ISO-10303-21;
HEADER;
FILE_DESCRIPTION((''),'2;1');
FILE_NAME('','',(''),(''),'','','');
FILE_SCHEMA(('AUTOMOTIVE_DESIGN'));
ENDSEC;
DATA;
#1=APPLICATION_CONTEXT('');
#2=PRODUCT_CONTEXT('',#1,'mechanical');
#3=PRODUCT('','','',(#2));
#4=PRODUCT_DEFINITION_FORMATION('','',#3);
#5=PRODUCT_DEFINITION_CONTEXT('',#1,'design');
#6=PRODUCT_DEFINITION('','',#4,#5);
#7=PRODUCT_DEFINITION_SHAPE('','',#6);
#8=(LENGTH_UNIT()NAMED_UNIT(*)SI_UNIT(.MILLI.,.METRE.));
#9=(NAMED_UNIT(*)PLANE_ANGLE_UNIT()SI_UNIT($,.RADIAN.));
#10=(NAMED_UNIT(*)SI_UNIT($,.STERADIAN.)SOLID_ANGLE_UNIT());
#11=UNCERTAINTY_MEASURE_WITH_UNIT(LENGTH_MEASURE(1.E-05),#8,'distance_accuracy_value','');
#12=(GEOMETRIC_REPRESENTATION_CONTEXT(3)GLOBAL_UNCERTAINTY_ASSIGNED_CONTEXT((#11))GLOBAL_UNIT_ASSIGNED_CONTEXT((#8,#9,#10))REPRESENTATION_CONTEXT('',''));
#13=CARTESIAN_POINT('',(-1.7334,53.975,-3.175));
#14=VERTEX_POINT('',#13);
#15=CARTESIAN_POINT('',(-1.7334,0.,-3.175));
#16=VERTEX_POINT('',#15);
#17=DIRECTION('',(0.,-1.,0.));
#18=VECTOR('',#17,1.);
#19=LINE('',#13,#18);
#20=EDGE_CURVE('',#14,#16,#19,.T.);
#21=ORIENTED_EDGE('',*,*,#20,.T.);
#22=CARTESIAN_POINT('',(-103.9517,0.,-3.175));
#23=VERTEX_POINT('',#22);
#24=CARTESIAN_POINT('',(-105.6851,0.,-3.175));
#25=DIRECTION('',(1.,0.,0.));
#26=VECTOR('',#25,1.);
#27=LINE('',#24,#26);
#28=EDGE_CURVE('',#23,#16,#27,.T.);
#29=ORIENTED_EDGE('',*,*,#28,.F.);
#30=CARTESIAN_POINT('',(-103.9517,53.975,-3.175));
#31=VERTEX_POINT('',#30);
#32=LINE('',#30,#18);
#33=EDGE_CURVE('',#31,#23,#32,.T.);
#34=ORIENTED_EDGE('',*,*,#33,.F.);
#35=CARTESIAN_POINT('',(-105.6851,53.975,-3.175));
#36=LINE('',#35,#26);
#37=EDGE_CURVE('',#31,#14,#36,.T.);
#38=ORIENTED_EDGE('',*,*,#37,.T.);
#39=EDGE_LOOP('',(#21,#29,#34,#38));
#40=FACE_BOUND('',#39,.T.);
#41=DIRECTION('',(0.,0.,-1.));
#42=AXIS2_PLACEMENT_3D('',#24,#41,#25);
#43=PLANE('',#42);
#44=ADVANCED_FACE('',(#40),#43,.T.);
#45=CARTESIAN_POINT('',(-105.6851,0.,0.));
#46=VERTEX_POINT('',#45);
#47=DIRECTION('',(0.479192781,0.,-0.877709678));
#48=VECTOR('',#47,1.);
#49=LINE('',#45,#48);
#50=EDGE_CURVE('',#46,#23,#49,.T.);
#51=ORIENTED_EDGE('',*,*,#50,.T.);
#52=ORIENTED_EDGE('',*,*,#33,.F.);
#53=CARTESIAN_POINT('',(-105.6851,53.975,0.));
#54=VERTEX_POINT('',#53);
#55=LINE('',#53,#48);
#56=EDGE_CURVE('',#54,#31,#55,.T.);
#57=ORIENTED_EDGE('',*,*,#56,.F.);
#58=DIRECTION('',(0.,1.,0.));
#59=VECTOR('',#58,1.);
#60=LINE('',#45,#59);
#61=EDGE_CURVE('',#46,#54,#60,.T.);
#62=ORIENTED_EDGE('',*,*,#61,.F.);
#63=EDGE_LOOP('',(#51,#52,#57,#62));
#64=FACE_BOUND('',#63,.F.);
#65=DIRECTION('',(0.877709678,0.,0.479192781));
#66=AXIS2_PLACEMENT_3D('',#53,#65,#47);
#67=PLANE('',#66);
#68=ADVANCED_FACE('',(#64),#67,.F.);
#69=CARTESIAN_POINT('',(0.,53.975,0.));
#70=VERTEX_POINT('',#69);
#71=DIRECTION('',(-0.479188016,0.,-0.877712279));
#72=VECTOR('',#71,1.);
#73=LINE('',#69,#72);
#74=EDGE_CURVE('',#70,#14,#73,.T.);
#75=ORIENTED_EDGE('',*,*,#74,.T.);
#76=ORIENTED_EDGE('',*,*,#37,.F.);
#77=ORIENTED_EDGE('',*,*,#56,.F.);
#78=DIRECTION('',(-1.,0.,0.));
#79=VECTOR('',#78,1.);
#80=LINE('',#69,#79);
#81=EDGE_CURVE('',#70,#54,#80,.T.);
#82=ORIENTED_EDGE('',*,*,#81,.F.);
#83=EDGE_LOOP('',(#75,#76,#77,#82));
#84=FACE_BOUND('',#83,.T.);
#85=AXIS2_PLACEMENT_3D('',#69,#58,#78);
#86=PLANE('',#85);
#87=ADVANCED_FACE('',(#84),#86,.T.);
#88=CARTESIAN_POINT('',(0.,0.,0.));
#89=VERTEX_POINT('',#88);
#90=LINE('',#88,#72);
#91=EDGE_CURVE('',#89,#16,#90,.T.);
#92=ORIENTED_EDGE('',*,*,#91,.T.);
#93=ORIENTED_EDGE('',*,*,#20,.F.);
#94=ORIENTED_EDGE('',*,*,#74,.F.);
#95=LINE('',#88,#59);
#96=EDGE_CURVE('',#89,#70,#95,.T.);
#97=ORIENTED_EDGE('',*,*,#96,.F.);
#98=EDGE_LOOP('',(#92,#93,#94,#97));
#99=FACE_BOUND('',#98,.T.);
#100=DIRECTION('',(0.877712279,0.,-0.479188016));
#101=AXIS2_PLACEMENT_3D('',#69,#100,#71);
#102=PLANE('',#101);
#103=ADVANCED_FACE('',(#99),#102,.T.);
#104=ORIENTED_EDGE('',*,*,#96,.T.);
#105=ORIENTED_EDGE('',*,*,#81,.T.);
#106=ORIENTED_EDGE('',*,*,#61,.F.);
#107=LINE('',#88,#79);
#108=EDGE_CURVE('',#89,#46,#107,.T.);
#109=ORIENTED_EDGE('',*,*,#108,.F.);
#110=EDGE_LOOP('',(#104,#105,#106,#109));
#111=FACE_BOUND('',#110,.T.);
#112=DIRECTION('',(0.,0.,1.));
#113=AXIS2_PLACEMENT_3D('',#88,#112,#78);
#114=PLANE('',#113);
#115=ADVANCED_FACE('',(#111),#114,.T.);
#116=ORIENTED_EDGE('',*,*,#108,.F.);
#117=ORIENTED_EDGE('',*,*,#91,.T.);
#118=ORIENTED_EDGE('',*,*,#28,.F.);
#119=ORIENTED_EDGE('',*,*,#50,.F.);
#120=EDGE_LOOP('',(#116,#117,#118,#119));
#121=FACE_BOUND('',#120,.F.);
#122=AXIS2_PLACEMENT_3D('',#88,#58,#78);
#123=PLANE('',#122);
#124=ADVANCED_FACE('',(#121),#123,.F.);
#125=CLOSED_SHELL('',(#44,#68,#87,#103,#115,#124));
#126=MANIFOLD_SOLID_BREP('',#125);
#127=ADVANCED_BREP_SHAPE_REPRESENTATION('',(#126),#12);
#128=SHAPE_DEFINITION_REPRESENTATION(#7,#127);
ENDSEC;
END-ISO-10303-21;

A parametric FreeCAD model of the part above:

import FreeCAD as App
import Part
import Sketcher
Q = App.Units.Quantity


def add_polygon(sketch, points):
    """Adds a closed chain of lines whose ends are joined by coincident constraints."""
    first, n = sketch.GeometryCount, len(points)
    for a, b in zip(points, points[1:] + points[:1]):
        sketch.addGeometry(Part.LineSegment(App.Vector(*a, 0), App.Vector(*b, 0)), False)
    for i in range(n):
        sketch.addConstraint(Sketcher.Constraint("Coincident", first + i, 2, first + (i + 1) % n, 1))

doc = App.newDocument("Part")
params = doc.addObject("Spreadsheet::Sheet", "Params")
for row, (alias, value) in enumerate([
    ("sketch1_height", "0.125 in"),
    ("pad1_length", "2.125 in"),
    ("sketch2_height", "0.125 in"),
    ("pocket1_length", "2.125 in"),
], start=1):
    params.set(f"A{row}", alias)
    params.set(f"B{row}", "=" + value)
    params.setAlias(f"B{row}", alias)

body = doc.addObject("PartDesign::Body", "Body")

# Sketch on XZ plane
sketch1 = body.newObject("Sketcher::SketchObject", "Sketch")
sketch1.AttachmentSupport = (doc.getObject("XZ_Plane"), [""])
sketch1.MapMode = "FlatFace"
add_polygon(sketch1, [(-105.7, 0), (0, 0), (0, -3.2), (-105.7, -3.2)])  # lines 0-3
sketch1.addConstraint([
    Sketcher.Constraint("Horizontal", 0),
    Sketcher.Constraint("Vertical", 1),
    Sketcher.Constraint("Horizontal", 2),
    Sketcher.Constraint("Vertical", 3),
    Sketcher.Constraint("Coincident", 0, 2, -1, 1),
    Sketcher.Constraint("DistanceY", 1, 2, 1, 1, Q("0.125 in")),
    Sketcher.Constraint("DistanceX", 0, 1, 0, 2, 105.685),
])
sketch1.setExpression("Constraints[9]", "Params.sketch1_height")
pad1 = body.newObject("PartDesign::Pad", "Pad")
pad1.Profile = sketch1
pad1.setExpression("Length", "Params.pad1_length")
pad1.Reversed = True

# Sketch on XZ plane
sketch2 = body.newObject("Sketcher::SketchObject", "Sketch001")
sketch2.AttachmentSupport = (doc.getObject("XZ_Plane"), [""])
sketch2.MapMode = "FlatFace"
sketch2.AttachmentOffset = App.Placement(App.Vector(0, 0, -2.125 * 25.4), App.Rotation())
add_polygon(sketch2, [(-104, -3.2), (-105.7, -3.2), (-105.7, 0)])  # lines 0-2
add_polygon(sketch2, [(-1.7, -3.2), (0, 0), (0, -3.2)])  # lines 3-5
sketch2.addConstraint([
    Sketcher.Constraint("Horizontal", 0),
    Sketcher.Constraint("Vertical", 1),
    Sketcher.Constraint("Vertical", 4),
    Sketcher.Constraint("Horizontal", 5),
    Sketcher.Constraint("Coincident", 3, 2, -1, 1),
    Sketcher.Constraint("PointOnObject", 1, 2, -1),
    Sketcher.Constraint("Horizontal", 2, 2, 4, 2),
    Sketcher.Constraint("Equal", 0, 5),
    Sketcher.Constraint("DistanceY", 1, 1, 1, 2, Q("0.125 in")),
    Sketcher.Constraint("DistanceX", 0, 2, 0, 1, 1.7334),
    Sketcher.Constraint("DistanceX", 0, 2, -1, 1, 105.685),
])
sketch2.setExpression("Constraints[14]", "Params.sketch2_height")
pocket1 = body.newObject("PartDesign::Pocket", "Pocket")
pocket1.Profile = sketch2
pocket1.setExpression("Length", "Params.pocket1_length")
pocket1.Reversed = True

doc.recompute()
